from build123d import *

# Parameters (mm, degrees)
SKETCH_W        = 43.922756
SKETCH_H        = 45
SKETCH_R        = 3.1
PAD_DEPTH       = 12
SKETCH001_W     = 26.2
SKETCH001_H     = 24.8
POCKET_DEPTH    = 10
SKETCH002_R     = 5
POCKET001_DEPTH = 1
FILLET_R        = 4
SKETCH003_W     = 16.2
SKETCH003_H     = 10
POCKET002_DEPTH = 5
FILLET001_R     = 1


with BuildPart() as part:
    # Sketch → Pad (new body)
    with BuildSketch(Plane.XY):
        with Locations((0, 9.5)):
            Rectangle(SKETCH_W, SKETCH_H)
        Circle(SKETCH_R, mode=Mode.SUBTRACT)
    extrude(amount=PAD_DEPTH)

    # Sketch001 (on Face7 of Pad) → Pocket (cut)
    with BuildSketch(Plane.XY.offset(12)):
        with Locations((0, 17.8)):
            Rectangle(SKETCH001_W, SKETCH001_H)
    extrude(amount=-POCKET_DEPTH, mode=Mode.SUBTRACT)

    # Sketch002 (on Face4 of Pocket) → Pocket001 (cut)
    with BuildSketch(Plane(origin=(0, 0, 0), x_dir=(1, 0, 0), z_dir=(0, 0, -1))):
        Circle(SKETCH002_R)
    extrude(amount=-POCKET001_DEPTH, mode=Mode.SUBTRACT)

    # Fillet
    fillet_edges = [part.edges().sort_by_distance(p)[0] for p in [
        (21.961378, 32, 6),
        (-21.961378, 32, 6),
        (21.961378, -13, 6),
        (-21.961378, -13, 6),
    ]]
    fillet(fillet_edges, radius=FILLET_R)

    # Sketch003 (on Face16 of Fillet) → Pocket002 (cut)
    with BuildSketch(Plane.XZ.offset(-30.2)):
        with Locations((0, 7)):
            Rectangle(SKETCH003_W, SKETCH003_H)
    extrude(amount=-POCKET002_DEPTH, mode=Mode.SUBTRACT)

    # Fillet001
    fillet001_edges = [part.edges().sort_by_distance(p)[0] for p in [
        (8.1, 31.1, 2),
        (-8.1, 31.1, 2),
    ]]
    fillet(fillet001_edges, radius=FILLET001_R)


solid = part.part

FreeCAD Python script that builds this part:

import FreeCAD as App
import Part
import Sketcher

V = App.Vector
Q = App.Units.Quantity


def edges_at(feature, points):
    """Names of the edges that pass closest to the given points."""
    edges = feature.Shape.Edges
    near = lambda p: min(range(len(edges)), key=lambda i: edges[i].distToShape(Part.Vertex(*p))[0])
    return sorted({f"Edge{near(p) + 1}" for p in points})


def add_polygon(sketch, points):
    """Adds a closed chain of lines whose ends are joined by coincident constraints."""
    first, n = sketch.GeometryCount, len(points)
    for a, b in zip(points, points[1:] + points[:1]):
        sketch.addGeometry(Part.LineSegment(App.Vector(*a, 0), App.Vector(*b, 0)), False)
    for i in range(n):
        sketch.addConstraint(Sketcher.Constraint("Coincident", first + i, 2, first + (i + 1) % n, 1))

doc = App.newDocument("Part")
body = doc.addObject("PartDesign::Body", "Body")

# Sketch on XY plane
sketch1 = body.newObject("Sketcher::SketchObject", "Sketch")
sketch1.AttachmentSupport = (doc.getObject("XY_Plane"), [""])
sketch1.MapMode = "FlatFace"
add_polygon(sketch1, [(-22, 32), (-22, -13), (22, -13), (22, 32)])  # lines 0-3
sketch1.addGeometry(Part.Circle(V(0, 0, 0), V(0, 0, 1), 3.1), False)  # 4
sketch1.addConstraint([
    Sketcher.Constraint("Vertical", 0),
    Sketcher.Constraint("Horizontal", 1),
    Sketcher.Constraint("Vertical", 2),
    Sketcher.Constraint("Horizontal", 3),
    Sketcher.Constraint("Coincident", 4, 3, -1, 1),
    Sketcher.Constraint("Diameter", 4, Q("6.2 mm")),
    Sketcher.Constraint("DistanceY", 0, 2, 0, 1, Q("45 mm")),
    Sketcher.Constraint("DistanceY", 0, 2, -1, 1, Q("13 mm")),
    Sketcher.Constraint("DistanceX", 1, 1, 1, 2, Q("43.922756 mm")),
    Sketcher.Constraint("DistanceX", 0, 2, -1, 1, Q("21.961378 mm")),
])
pad1 = body.newObject("PartDesign::Pad", "Pad")
pad1.Profile = sketch1
pad1.Length = 12

# Sketch on XY plane
sketch2 = body.newObject("Sketcher::SketchObject", "Sketch001")
sketch2.AttachmentSupport = (doc.getObject("XY_Plane"), [""])
sketch2.MapMode = "FlatFace"
sketch2.AttachmentOffset = App.Placement(V(0, 0, 12), App.Rotation())
add_polygon(sketch2, [(-13, 30), (-13, 5), (13, 5), (13, 30)])  # lines 0-3
sketch2.addConstraint([
    Sketcher.Constraint("Vertical", 0),
    Sketcher.Constraint("Horizontal", 1),
    Sketcher.Constraint("Vertical", 2),
    Sketcher.Constraint("Horizontal", 3),
    Sketcher.Constraint("DistanceX", 1, 1, 1, 2, Q("26.2 mm")),
    Sketcher.Constraint("DistanceY", 0, 2, 0, 1, Q("24.8 mm")),
    Sketcher.Constraint("DistanceX", 0, 2, -1, 1, Q("13.1 mm")),
    Sketcher.Constraint("DistanceY", -1, 1, 0, 2, Q("5.4 mm")),
])
pocket1 = body.newObject("PartDesign::Pocket", "Pocket")
pocket1.Profile = sketch2
pocket1.Length = 10

# Sketch on XY plane
sketch3 = body.newObject("Sketcher::SketchObject", "Sketch002")
sketch3.AttachmentSupport = (doc.getObject("XY_Plane"), [""])
sketch3.MapMode = "FlatFace"
sketch3.addGeometry(Part.Circle(V(0, 0, 0), V(0, 0, 1), 5), False)
sketch3.addConstraint([
    Sketcher.Constraint("Coincident", 0, 3, -1, 1),
    Sketcher.Constraint("Diameter", 0, Q("10 mm")),
])
pocket2 = body.newObject("PartDesign::Pocket", "Pocket001")
pocket2.Profile = sketch3
pocket2.Length = 1
pocket2.Reversed = True
doc.recompute()

fillet = body.newObject("PartDesign::Fillet", "Fillet")
fillet.Base = (pocket2, edges_at(pocket2, [
    (21.961, 32, 6),
    (-21.961, 32, 6),
    (21.961, -13, 6),
    (-21.961, -13, 6),
]))
fillet.Radius = 4

# Sketch on XZ plane
sketch4 = body.newObject("Sketcher::SketchObject", "Sketch003")
sketch4.AttachmentSupport = (doc.getObject("XZ_Plane"), [""])
sketch4.MapMode = "FlatFace"
sketch4.AttachmentOffset = App.Placement(V(0, 0, -30.2), App.Rotation())
add_polygon(sketch4, [(-8, 12), (-8, 2), (8, 2), (8, 12)])  # lines 0-3
sketch4.addConstraint([
    Sketcher.Constraint("Vertical", 0),
    Sketcher.Constraint("Horizontal", 1),
    Sketcher.Constraint("Vertical", 2),
    Sketcher.Constraint("Horizontal", 3),
    Sketcher.Constraint("DistanceY", 0, 2, 0, 1, Q("10 mm")),
    Sketcher.Constraint("DistanceX", 1, 1, 1, 2, Q("16.2 mm")),
    Sketcher.Constraint("DistanceY", -1, 1, 0, 2, Q("2 mm")),
    Sketcher.Constraint("DistanceX", 0, 2, -1, 1, Q("8.1 mm")),
])
pocket3 = body.newObject("PartDesign::Pocket", "Pocket002")
pocket3.Profile = sketch4
pocket3.Length = 5
doc.recompute()

fillet2 = body.newObject("PartDesign::Fillet", "Fillet001")
fillet2.Base = (pocket3, edges_at(pocket3, [(8.1, 31.1, 2), (-8.1, 31.1, 2)]))
fillet2.Radius = 1

doc.recompute()
